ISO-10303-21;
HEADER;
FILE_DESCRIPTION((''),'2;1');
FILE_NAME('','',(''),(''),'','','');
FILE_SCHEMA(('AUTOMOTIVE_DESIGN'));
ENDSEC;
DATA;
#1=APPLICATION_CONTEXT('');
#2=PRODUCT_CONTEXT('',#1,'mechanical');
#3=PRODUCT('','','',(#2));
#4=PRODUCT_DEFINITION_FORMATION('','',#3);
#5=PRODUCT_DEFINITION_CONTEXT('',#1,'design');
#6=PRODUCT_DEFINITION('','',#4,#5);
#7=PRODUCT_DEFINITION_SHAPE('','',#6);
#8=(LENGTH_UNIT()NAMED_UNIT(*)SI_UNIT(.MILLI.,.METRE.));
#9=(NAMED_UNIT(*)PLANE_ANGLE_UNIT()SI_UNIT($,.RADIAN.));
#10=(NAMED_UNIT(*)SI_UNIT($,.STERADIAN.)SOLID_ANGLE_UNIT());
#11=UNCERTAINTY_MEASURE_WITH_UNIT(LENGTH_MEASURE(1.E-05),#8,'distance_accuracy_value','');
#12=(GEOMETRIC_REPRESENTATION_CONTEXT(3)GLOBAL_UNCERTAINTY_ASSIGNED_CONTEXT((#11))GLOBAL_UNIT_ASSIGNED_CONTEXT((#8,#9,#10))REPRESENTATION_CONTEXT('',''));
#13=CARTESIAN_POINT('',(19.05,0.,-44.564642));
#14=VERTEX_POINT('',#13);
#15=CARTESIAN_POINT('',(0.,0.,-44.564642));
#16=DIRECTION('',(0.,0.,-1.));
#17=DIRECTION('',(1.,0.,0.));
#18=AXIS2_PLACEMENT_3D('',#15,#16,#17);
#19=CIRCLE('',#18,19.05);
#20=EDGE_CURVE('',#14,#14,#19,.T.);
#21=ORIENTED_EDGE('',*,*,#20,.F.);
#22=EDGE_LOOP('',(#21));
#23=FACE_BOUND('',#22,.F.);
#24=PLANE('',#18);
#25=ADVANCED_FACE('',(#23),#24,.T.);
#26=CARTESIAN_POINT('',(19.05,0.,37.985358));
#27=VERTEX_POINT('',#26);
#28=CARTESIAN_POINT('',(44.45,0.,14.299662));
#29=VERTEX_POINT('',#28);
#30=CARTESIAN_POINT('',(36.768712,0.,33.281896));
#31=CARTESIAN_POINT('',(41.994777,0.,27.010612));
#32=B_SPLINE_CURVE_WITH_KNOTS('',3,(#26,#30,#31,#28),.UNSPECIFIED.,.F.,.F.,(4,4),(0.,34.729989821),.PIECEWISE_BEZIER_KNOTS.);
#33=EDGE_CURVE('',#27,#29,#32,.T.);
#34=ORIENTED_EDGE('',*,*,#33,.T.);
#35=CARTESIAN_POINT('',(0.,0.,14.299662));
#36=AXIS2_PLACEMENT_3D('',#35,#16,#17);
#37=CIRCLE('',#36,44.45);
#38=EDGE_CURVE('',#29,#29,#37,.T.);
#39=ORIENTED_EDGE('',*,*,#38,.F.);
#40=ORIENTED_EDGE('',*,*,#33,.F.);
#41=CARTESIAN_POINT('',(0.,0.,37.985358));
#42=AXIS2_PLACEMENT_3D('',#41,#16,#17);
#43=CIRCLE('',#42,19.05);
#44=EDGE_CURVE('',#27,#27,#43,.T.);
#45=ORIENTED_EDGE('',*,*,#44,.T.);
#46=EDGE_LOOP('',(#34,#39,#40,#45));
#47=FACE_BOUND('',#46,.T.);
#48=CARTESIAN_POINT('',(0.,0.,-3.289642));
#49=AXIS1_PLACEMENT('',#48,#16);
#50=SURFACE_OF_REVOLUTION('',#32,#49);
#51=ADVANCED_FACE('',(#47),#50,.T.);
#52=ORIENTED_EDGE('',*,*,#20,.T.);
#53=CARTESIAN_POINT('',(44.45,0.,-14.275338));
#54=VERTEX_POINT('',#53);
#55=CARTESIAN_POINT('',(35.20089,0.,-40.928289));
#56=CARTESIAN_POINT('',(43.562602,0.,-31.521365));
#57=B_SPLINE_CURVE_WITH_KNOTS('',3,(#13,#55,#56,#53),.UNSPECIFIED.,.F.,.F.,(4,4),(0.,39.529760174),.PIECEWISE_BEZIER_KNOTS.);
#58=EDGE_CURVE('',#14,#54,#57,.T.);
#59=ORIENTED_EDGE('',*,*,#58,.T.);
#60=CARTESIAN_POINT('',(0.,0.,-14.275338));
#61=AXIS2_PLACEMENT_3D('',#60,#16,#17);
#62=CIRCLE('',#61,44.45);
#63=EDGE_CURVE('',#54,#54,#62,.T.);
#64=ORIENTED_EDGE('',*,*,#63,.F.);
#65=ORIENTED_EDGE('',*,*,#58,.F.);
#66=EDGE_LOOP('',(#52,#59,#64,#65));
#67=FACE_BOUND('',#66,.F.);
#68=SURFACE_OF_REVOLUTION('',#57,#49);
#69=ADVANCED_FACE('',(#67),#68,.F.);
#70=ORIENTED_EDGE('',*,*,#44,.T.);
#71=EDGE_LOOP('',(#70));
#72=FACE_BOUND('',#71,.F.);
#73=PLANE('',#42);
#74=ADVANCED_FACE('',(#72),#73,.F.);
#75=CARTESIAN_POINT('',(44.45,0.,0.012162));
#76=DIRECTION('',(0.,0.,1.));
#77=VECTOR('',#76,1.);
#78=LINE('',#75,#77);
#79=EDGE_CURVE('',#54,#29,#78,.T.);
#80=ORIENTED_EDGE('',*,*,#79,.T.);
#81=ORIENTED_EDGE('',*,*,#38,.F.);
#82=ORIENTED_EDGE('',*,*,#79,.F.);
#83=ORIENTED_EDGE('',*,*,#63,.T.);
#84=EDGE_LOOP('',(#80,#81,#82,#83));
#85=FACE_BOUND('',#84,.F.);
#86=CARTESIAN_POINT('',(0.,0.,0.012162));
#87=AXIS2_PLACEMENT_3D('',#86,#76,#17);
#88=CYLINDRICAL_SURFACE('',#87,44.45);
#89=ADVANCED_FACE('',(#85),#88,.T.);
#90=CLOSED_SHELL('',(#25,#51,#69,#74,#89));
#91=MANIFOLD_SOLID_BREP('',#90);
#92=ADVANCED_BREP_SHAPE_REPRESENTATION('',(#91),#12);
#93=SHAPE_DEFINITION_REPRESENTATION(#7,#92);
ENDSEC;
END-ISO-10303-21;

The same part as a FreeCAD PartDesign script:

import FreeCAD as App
import Part
import Sketcher
from FreeCAD import Vector
Q = App.Units.Quantity


def add_polygon(sketch, points):
    """Adds a closed chain of lines whose ends are joined by coincident constraints."""
    first, n = sketch.GeometryCount, len(points)
    for a, b in zip(points, points[1:] + points[:1]):
        sketch.addGeometry(Part.LineSegment(App.Vector(*a, 0), App.Vector(*b, 0)), False)
    for i in range(n):
        sketch.addConstraint(Sketcher.Constraint("Coincident", first + i, 2, first + (i + 1) % n, 1))

doc = App.newDocument("Part")
body = doc.addObject("PartDesign::Body", "Body")

sketch1 = body.newObject("Sketcher::SketchObject", "Sketch")
sketch1.AttachmentSupport = (doc.getObject("XZ_Plane"), [""])
sketch1.MapMode = "FlatFace"
add_polygon(sketch1, [(0, 14), (0, -14), (44, -14), (44, 14)])
sketch1.addConstraint([
    Sketcher.Constraint("Vertical", 0),
    Sketcher.Constraint("Horizontal", 1),
    Sketcher.Constraint("Vertical", 2),
    Sketcher.Constraint("Horizontal", 3),
    Sketcher.Constraint("PointOnObject", 0, 2, -2),
    Sketcher.Constraint("DistanceX", 1, 1, 1, 2, Q("1.75 in")),
    Sketcher.Constraint("DistanceY", 0, 2, 0, 1, Q("1.125 in")),
    Sketcher.Constraint("DistanceY", 0, 2, -1, 1, Q("14.275338 mm")),
])
revolution = body.newObject("PartDesign::Revolution", "Revolution")
revolution.Profile = sketch1
revolution.ReferenceAxis = (sketch1, ["V_Axis"])
revolution.Angle = 360

sketch2 = body.newObject("Sketcher::SketchObject", "Sketch001")
sketch2.AttachmentSupport = (doc.getObject("XZ_Plane"), [""])
sketch2.MapMode = "FlatFace"
sketch2.addGeometry([
    Part.LineSegment(Vector(44.45, -14.275338, 0), Vector(0, -14.275338, 0)),
    Part.LineSegment(Vector(0, -14.275338, 0), Vector(0, -44.564642, 0)),
    Part.LineSegment(Vector(0, -44.564642, 0), Vector(19.05, -44.564642, 0)),
    Part.BSplineCurve([Vector(19.05, -44.564642, 0), Vector(35.20089, -40.928289, 0), Vector(43.562602, -31.521365, 0), Vector(44.45, -14.275338, 0)], [4, 4], [0, 39.529760174], False, 3, [1, 1, 1, 1], False),
], False)
sketch2.addConstraint([
    Sketcher.Constraint("Block", 3),
    Sketcher.Constraint("Coincident", 0, 2, 1, 1),
    Sketcher.Constraint("Coincident", 1, 2, 2, 1),
    Sketcher.Constraint("Coincident", 2, 2, 3, 1),
    Sketcher.Constraint("Coincident", 3, 2, 0, 1),
    Sketcher.Constraint("Horizontal", 0),
    Sketcher.Constraint("Vertical", 1),
    Sketcher.Constraint("Horizontal", 2),
    Sketcher.Constraint("PointOnObject", 0, 2, -2),
])
revolution2 = body.newObject("PartDesign::Revolution", "Revolution001")
revolution2.Profile = sketch2
revolution2.ReferenceAxis = (sketch2, ["V_Axis"])
revolution2.Angle = 360

sketch3 = body.newObject("Sketcher::SketchObject", "Sketch002")
sketch3.AttachmentSupport = (doc.getObject("XZ_Plane"), [""])
sketch3.MapMode = "FlatFace"
sketch3.addGeometry([
    Part.LineSegment(Vector(19.05, 37.985358, 0), Vector(0, 37.985358, 0)),
    Part.LineSegment(Vector(0, 37.985358, 0), Vector(0, 14.299662, 0)),
    Part.LineSegment(Vector(0, 14.299662, 0), Vector(44.45, 14.299662, 0)),
    Part.BSplineCurve([Vector(19.05, 37.985358, 0), Vector(36.768712, 33.281896, 0), Vector(41.994777, 27.010612, 0), Vector(44.45, 14.299662, 0)], [4, 4], [0, 34.729989821], False, 3, [1, 1, 1, 1], False),
], False)
sketch3.addConstraint([
    Sketcher.Constraint("Block", 3),
    Sketcher.Constraint("Coincident", 0, 2, 1, 1),
    Sketcher.Constraint("Coincident", 1, 2, 2, 1),
    Sketcher.Constraint("Coincident", 2, 2, 3, 2),
    Sketcher.Constraint("Coincident", 3, 1, 0, 1),
    Sketcher.Constraint("Horizontal", 0),
    Sketcher.Constraint("Vertical", 1),
    Sketcher.Constraint("Horizontal", 2),
    Sketcher.Constraint("PointOnObject", 0, 2, -2),
])
revolution3 = body.newObject("PartDesign::Revolution", "Revolution002")
revolution3.Profile = sketch3
revolution3.ReferenceAxis = (sketch3, ["V_Axis"])
revolution3.Angle = 360

doc.recompute()
